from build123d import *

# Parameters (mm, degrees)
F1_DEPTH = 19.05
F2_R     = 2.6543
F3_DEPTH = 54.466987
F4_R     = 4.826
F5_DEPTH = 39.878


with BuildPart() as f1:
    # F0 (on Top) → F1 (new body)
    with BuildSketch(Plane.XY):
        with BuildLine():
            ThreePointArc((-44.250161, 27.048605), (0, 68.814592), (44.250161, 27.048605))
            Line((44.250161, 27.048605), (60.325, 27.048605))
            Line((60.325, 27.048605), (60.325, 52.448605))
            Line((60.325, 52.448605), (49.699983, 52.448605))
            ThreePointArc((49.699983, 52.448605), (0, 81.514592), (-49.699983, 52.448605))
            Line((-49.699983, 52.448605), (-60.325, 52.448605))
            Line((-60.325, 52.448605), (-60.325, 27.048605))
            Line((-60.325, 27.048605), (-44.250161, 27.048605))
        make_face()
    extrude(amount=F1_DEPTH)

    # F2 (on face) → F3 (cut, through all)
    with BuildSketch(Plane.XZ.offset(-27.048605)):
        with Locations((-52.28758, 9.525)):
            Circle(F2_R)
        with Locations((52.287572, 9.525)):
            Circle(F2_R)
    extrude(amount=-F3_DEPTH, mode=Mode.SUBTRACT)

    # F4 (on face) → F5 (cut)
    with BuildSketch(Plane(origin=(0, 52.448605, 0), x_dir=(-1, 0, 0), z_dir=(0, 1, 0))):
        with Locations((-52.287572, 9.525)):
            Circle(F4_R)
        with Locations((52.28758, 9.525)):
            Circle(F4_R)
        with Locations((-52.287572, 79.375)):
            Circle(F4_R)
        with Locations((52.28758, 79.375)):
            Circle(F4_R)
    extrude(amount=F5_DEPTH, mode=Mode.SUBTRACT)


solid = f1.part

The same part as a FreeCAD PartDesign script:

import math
import FreeCAD as App
import Part
import Sketcher
from FreeCAD import Vector
Q = App.Units.Quantity

doc = App.newDocument("Part")
params = doc.addObject("Spreadsheet::Sheet", "Params")
for row, (alias, value) in enumerate([
    ("sketch1_height", "1 in"),
    ("pad1_length", "0.75 in"),
    ("sketch2_diameter", "0.209 in"),
    ("sketch3_diameter", "0.38 in"),
    ("pocket2_length", "1.57 in"),
], start=1):
    params.set(f"A{row}", alias)
    params.set(f"B{row}", "=" + value)
    params.setAlias(f"B{row}", alias)

body = doc.addObject("PartDesign::Body", "Body")

# Sketch on XY plane
sketch1 = body.newObject("Sketcher::SketchObject", "Sketch")
sketch1.AttachmentSupport = (doc.getObject("XY_Plane"), [""])
sketch1.MapMode = "FlatFace"
sketch1.addGeometry(Part.ArcOfCircle(Part.Circle(Vector(0, 24, 0), Vector(0, 0, 1), 44), math.radians(3), math.radians(177)), False)
sketch1.addGeometry(Part.LineSegment(Vector(44, 27, 0), Vector(60, 27, 0)), False)
sketch1.addGeometry(Part.LineSegment(Vector(60, 27, 0), Vector(60, 52, 0)), False)
sketch1.addGeometry(Part.LineSegment(Vector(60, 52, 0), Vector(50, 52, 0)), False)
sketch1.addGeometry(Part.ArcOfCircle(Part.Circle(Vector(0, 24, 0), Vector(0, 0, 1), 57), math.radians(29), math.radians(151)), False)
sketch1.addGeometry(Part.LineSegment(Vector(-50, 52, 0), Vector(-60, 52, 0)), False)
sketch1.addGeometry(Part.LineSegment(Vector(-60, 52, 0), Vector(-60, 27, 0)), False)
sketch1.addGeometry(Part.LineSegment(Vector(-60, 27, 0), Vector(-44, 27, 0)), False)
sketch1.addConstraint(Sketcher.Constraint("Coincident", 0, 1, 1, 1))
sketch1.addConstraint(Sketcher.Constraint("Coincident", 1, 2, 2, 1))
sketch1.addConstraint(Sketcher.Constraint("Coincident", 2, 2, 3, 1))
sketch1.addConstraint(Sketcher.Constraint("Coincident", 3, 2, 4, 1))
sketch1.addConstraint(Sketcher.Constraint("Coincident", 4, 2, 5, 1))
sketch1.addConstraint(Sketcher.Constraint("Coincident", 5, 2, 6, 1))
sketch1.addConstraint(Sketcher.Constraint("Coincident", 6, 2, 7, 1))
sketch1.addConstraint(Sketcher.Constraint("Coincident", 7, 2, 0, 2))
sketch1.addConstraint(Sketcher.Constraint("Horizontal", 1))
sketch1.addConstraint(Sketcher.Constraint("Vertical", 2))
sketch1.addConstraint(Sketcher.Constraint("Horizontal", 3))
sketch1.addConstraint(Sketcher.Constraint("Horizontal", 5))
sketch1.addConstraint(Sketcher.Constraint("Vertical", 6))
sketch1.addConstraint(Sketcher.Constraint("Horizontal", 7))
sketch1.addConstraint(Sketcher.Constraint("Coincident", 4, 3, 0, 3))
sketch1.addConstraint(Sketcher.Constraint("Symmetric", 3, 2, 4, 2, -2))
sketch1.addConstraint(Sketcher.Constraint("Symmetric", 1, 2, 6, 2, -2))
sketch1.addConstraint(Sketcher.Constraint("DistanceY", 2, 1, 2, 2, Q("1 in")))
sketch1.addConstraint(Sketcher.Constraint("DistanceX", -1, 1, 1, 2, Q("2.375 in")))
sketch1.addConstraint(Sketcher.Constraint("Radius", 0, Q("44.324038 mm")))
sketch1.addConstraint(Sketcher.Constraint("Radius", 4, Q("57.024038 mm")))
sketch1.addConstraint(Sketcher.Constraint("DistanceX", 1, 1, 1, 2, Q("16.074839 mm")))
sketch1.addConstraint(Sketcher.Constraint("DistanceY", -1, 1, 0, 3, Q("24.490554 mm")))
sketch1.setExpression("Constraints[17]", "Params.sketch1_height")
pad1 = body.newObject("PartDesign::Pad", "Pad")
pad1.Profile = sketch1
pad1.setExpression("Length", "Params.pad1_length")

# Sketch on XZ plane
sketch2 = body.newObject("Sketcher::SketchObject", "Sketch001")
sketch2.AttachmentSupport = (doc.getObject("XZ_Plane"), [""])
sketch2.MapMode = "FlatFace"
sketch2.AttachmentOffset = App.Placement(Vector(0, 0, -27.048605), App.Rotation())
sketch2.addGeometry(Part.Circle(Vector(-52.3, 9.5, 0), Vector(0, 0, 1), 2.7), False)
sketch2.addGeometry(Part.Circle(Vector(52.3, 9.5, 0), Vector(0, 0, 1), 2.7), False)
sketch2.addConstraint(Sketcher.Constraint("Equal", 0, 1))
sketch2.addConstraint(Sketcher.Constraint("Symmetric", 0, 3, 1, 3, -2))
sketch2.addConstraint(Sketcher.Constraint("Diameter", 0, Q("0.209 in")))
sketch2.addConstraint(Sketcher.Constraint("DistanceY", -1, 1, 0, 3, Q("0.375 in")))
sketch2.addConstraint(Sketcher.Constraint("DistanceX", 0, 3, -1, 1, Q("52.28758 mm")))
sketch2.setExpression("Constraints[2]", "Params.sketch2_diameter")
pocket1 = body.newObject("PartDesign::Pocket", "Pocket")
pocket1.Profile = sketch2
pocket1.Type = "ThroughAll"

# Sketch on XZ plane
sketch3 = body.newObject("Sketcher::SketchObject", "Sketch002")
sketch3.AttachmentSupport = (doc.getObject("XZ_Plane"), [""])
sketch3.MapMode = "FlatFace"
sketch3.AttachmentOffset = App.Placement(Vector(0, 0, -52.448605), App.Rotation())
sketch3.addGeometry(Part.Circle(Vector(52.3, 9.5, 0), Vector(0, 0, 1), 4.8), False)
sketch3.addGeometry(Part.Circle(Vector(-52.3, 9.5, 0), Vector(0, 0, 1), 4.8), False)
sketch3.addGeometry(Part.Circle(Vector(52.3, 79.4, 0), Vector(0, 0, 1), 4.8), False)
sketch3.addGeometry(Part.Circle(Vector(-52.3, 79.4, 0), Vector(0, 0, 1), 4.8), False)
sketch3.addConstraint(Sketcher.Constraint("Equal", 0, 1))
sketch3.addConstraint(Sketcher.Constraint("Equal", 1, 2))
sketch3.addConstraint(Sketcher.Constraint("Equal", 2, 3))
sketch3.addConstraint(Sketcher.Constraint("Symmetric", 0, 3, 1, 3, -2))
sketch3.addConstraint(Sketcher.Constraint("Symmetric", 2, 3, 3, 3, -2))
sketch3.addConstraint(Sketcher.Constraint("Vertical", 0, 3, 2, 3))
sketch3.addConstraint(Sketcher.Constraint("Diameter", 0, Q("0.38 in")))
sketch3.addConstraint(Sketcher.Constraint("DistanceY", 0, 3, 2, 3, Q("2.75 in")))
sketch3.addConstraint(Sketcher.Constraint("DistanceY", -1, 1, 0, 3, Q("0.375 in")))
sketch3.addConstraint(Sketcher.Constraint("DistanceX", -1, 1, 0, 3, Q("52.287572 mm")))
sketch3.setExpression("Constraints[6]", "Params.sketch3_diameter")
pocket2 = body.newObject("PartDesign::Pocket", "Pocket001")
pocket2.Profile = sketch3
pocket2.setExpression("Length", "Params.pocket2_length")

doc.recompute()
